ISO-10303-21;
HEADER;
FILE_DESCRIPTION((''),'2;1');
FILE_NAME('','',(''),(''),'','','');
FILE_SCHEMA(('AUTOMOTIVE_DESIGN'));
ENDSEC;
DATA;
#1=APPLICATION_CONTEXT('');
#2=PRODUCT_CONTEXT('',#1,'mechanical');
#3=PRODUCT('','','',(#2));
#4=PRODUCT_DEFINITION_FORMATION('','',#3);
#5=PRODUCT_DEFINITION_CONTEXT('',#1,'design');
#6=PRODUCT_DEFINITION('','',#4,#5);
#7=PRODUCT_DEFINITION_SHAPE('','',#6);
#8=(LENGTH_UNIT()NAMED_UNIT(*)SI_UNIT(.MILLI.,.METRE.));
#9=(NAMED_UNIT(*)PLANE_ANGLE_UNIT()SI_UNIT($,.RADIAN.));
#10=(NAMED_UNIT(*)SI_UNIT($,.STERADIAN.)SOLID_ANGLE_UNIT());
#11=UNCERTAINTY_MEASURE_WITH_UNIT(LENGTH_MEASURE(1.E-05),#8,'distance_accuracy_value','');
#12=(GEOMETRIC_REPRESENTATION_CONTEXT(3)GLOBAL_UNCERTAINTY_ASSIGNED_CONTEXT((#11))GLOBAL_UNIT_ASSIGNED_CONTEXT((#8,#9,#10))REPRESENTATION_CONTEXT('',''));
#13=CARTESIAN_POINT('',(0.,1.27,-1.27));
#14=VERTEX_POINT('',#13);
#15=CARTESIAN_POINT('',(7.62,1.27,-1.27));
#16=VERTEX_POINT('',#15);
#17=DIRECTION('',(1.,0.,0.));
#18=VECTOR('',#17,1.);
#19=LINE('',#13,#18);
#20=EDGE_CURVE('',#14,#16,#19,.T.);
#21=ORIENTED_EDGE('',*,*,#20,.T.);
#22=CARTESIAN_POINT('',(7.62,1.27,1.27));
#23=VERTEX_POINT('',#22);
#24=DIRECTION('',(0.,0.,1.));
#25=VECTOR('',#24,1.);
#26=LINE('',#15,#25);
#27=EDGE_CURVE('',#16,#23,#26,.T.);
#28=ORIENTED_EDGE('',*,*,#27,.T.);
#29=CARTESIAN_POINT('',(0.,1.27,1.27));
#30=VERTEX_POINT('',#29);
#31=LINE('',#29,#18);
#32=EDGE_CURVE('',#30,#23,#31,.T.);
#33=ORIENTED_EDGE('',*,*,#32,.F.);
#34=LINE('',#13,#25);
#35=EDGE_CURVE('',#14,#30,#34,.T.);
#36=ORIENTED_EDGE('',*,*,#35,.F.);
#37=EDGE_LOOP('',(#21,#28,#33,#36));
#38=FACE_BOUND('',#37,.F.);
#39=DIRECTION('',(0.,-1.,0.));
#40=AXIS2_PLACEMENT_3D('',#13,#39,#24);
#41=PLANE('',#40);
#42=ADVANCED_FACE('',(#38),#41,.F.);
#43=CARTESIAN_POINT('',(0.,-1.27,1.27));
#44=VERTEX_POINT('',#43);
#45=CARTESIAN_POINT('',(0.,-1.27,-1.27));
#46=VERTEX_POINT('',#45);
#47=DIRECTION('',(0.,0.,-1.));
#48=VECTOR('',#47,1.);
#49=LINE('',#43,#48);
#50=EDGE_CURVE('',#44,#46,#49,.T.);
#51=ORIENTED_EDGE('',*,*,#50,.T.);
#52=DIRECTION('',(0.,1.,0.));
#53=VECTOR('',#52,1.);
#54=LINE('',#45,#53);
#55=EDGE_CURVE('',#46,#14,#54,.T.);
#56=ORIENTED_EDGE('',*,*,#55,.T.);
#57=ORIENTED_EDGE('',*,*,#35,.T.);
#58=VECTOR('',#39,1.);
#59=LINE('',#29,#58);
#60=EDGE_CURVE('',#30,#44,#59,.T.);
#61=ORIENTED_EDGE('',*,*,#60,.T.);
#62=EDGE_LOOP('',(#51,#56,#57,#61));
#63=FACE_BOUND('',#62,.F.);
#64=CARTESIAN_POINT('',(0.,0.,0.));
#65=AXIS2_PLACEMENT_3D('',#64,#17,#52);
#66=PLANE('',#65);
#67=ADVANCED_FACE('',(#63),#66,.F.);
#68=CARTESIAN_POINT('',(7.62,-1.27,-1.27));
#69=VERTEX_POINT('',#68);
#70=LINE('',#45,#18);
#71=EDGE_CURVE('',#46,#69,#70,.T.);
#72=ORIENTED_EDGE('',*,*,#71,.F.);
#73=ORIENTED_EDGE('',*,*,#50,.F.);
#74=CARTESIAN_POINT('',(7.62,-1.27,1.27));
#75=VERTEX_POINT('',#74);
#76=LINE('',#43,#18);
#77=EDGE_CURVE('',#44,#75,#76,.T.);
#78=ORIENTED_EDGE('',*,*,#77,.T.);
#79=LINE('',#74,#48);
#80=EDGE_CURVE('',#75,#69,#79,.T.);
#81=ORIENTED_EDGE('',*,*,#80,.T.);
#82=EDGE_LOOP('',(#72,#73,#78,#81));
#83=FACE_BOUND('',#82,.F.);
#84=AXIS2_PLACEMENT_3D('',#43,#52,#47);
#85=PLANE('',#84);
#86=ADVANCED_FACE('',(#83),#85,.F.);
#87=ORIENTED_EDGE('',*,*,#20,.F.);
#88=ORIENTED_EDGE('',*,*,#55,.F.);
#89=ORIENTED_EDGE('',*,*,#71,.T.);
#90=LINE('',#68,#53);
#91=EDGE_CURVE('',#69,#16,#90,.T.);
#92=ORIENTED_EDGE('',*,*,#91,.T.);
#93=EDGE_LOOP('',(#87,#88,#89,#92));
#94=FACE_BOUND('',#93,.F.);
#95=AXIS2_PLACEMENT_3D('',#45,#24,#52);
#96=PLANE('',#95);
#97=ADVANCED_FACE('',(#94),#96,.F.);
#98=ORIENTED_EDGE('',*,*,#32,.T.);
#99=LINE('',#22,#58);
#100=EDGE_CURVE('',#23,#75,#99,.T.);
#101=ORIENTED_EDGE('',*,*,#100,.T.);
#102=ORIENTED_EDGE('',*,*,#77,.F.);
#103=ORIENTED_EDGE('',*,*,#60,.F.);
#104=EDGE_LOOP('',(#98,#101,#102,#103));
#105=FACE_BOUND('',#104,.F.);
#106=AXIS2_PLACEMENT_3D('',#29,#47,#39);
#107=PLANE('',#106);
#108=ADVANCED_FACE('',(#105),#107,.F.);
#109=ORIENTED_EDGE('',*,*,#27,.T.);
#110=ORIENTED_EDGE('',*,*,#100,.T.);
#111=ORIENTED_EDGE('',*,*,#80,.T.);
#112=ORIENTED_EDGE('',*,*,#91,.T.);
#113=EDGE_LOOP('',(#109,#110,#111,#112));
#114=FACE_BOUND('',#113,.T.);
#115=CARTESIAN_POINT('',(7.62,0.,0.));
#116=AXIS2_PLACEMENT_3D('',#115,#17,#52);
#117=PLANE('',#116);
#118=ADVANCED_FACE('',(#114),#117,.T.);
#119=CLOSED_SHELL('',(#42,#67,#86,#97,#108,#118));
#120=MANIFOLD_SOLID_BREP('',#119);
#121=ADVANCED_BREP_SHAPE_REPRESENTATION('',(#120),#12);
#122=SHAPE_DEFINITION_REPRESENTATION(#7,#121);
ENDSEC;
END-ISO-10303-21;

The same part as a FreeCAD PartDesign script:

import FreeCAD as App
import Part
import Sketcher
from FreeCAD import Vector
Q = App.Units.Quantity

doc = App.newDocument("Part")
params = doc.addObject("Spreadsheet::Sheet", "Params")
for row, (alias, value) in enumerate([
    ("pad1_length", "0.3 in"),
], start=1):
    params.set(f"A{row}", alias)
    params.set(f"B{row}", "=" + value)
    params.setAlias(f"B{row}", alias)

body = doc.addObject("PartDesign::Body", "Body")

sketch1 = body.newObject("Sketcher::SketchObject", "Sketch")
sketch1.AttachmentSupport = (doc.getObject("YZ_Plane"), [""])
sketch1.MapMode = "FlatFace"
sketch1.addGeometry([
    Part.LineSegment(Vector(1.3, -1.3, 0), Vector(1.3, 1.3, 0)),
    Part.LineSegment(Vector(1.3, 1.3, 0), Vector(-1.3, 1.3, 0)),
    Part.LineSegment(Vector(-1.3, 1.3, 0), Vector(-1.3, -1.3, 0)),
    Part.LineSegment(Vector(-1.3, -1.3, 0), Vector(1.3, -1.3, 0)),
], False)
sketch1.addConstraint([
    Sketcher.Constraint("Coincident", 0, 2, 1, 1),
    Sketcher.Constraint("Coincident", 1, 2, 2, 1),
    Sketcher.Constraint("Coincident", 2, 2, 3, 1),
    Sketcher.Constraint("Coincident", 3, 2, 0, 1),
    Sketcher.Constraint("Vertical", 0),
    Sketcher.Constraint("Horizontal", 1),
    Sketcher.Constraint("Vertical", 2),
    Sketcher.Constraint("Horizontal", 3),
    Sketcher.Constraint("Symmetric", 0, 2, 2, 2, -1, 1),
    Sketcher.Constraint("Equal", 3, 0),
    Sketcher.Constraint("DistanceX", -1, 1, 0, 2, Q("0.05 in")),
])
pad1 = body.newObject("PartDesign::Pad", "Pad")
pad1.Profile = sketch1
pad1.setExpression("Length", "Params.pad1_length")

doc.recompute()
